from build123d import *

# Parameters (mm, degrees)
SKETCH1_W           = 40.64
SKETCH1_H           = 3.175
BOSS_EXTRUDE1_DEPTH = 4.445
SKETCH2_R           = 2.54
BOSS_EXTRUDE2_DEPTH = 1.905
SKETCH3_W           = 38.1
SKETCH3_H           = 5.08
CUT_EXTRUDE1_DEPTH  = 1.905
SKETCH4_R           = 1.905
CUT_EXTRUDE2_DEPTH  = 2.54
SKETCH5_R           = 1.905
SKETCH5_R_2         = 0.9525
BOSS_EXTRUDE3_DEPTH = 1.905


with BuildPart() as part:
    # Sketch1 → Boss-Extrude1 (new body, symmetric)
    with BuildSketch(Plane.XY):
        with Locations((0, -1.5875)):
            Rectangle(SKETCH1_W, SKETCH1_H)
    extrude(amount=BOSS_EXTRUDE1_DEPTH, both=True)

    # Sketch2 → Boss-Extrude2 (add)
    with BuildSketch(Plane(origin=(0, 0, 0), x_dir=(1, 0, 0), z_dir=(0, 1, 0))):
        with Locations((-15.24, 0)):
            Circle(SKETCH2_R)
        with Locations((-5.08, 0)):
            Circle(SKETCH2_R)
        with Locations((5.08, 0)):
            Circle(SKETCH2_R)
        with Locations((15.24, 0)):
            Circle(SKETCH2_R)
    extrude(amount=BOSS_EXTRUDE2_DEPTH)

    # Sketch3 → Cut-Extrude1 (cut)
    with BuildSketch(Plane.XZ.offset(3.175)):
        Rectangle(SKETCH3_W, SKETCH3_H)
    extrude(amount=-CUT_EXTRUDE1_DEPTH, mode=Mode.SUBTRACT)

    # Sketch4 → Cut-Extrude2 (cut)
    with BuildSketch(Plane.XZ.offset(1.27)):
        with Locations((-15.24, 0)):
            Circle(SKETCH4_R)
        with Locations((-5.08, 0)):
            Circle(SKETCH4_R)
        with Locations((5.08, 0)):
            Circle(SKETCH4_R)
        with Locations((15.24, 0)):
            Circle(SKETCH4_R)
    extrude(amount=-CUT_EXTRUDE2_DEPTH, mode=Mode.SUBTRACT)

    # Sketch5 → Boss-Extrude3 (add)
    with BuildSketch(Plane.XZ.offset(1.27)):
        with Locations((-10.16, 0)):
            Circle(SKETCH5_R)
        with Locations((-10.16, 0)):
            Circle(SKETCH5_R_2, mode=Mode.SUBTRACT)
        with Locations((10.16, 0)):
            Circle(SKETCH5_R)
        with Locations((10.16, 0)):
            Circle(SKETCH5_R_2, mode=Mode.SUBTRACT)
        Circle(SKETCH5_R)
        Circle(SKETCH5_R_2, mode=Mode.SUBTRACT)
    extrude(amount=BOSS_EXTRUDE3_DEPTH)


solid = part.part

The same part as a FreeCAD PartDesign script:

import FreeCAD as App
import Part
import Sketcher

V = App.Vector
Q = App.Units.Quantity

doc = App.newDocument("Part")
body = doc.addObject("PartDesign::Body", "Body")

# Sketch on XY plane
sketch1 = body.newObject("Sketcher::SketchObject", "Sketch")
sketch1.AttachmentSupport = (doc.getObject("XY_Plane"), [""])
sketch1.MapMode = "FlatFace"
sketch1.addGeometry([
    Part.LineSegment(V(-20.3, 0, 0), V(-20.3, -3.2, 0)),
    Part.LineSegment(V(-20.3, -3.2, 0), V(20.3, -3.2, 0)),
    Part.LineSegment(V(20.3, -3.2, 0), V(20.3, 0, 0)),
    Part.LineSegment(V(20.3, 0, 0), V(-20.3, 0, 0)),
], False)
sketch1.addConstraint([
    Sketcher.Constraint("Coincident", 0, 2, 1, 1),
    Sketcher.Constraint("Coincident", 1, 2, 2, 1),
    Sketcher.Constraint("Coincident", 2, 2, 3, 1),
    Sketcher.Constraint("Coincident", 3, 2, 0, 1),
    Sketcher.Constraint("Vertical", 0),
    Sketcher.Constraint("Horizontal", 1),
    Sketcher.Constraint("Vertical", 2),
    Sketcher.Constraint("Horizontal", 3),
    Sketcher.Constraint("Symmetric", 2, 2, 3, 2, -1, 1),
    Sketcher.Constraint("DistanceX", 1, 1, 1, 2, Q("1.6 in")),
    Sketcher.Constraint("DistanceY", 0, 2, 0, 1, Q("0.125 in")),
])
pad1 = body.newObject("PartDesign::Pad", "Pad")
pad1.Profile = sketch1
pad1.Length = Q("0.35 in")
pad1.Midplane = True

# Sketch on XZ plane
sketch2 = body.newObject("Sketcher::SketchObject", "Sketch001")
sketch2.AttachmentSupport = (doc.getObject("XZ_Plane"), [""])
sketch2.MapMode = "FlatFace"
sketch2.addGeometry([
    Part.Circle(V(-15.2, 0, 0), V(0, 0, 1), 2.5),
    Part.Circle(V(-5.1, 0, 0), V(0, 0, 1), 2.5),
    Part.Circle(V(5.1, 0, 0), V(0, 0, 1), 2.5),
    Part.Circle(V(15.2, 0, 0), V(0, 0, 1), 2.5),
], False)
sketch2.addConstraint([
    Sketcher.Constraint("Equal", 0, 1),
    Sketcher.Constraint("Equal", 1, 2),
    Sketcher.Constraint("Equal", 2, 3),
    Sketcher.Constraint("Symmetric", 1, 3, 2, 3, -1, 1),
    Sketcher.Constraint("Symmetric", 0, 3, 3, 3, -1, 1),
    Sketcher.Constraint("PointOnObject", 0, 3, -1),
    Sketcher.Constraint("PointOnObject", 1, 3, -1),
    Sketcher.Constraint("Diameter", 0, Q("0.2 in")),
    Sketcher.Constraint("DistanceX", 0, 3, -1, 1, Q("0.6 in")),
    Sketcher.Constraint("DistanceX", 1, 3, -1, 1, Q("0.2 in")),
])
pad2 = body.newObject("PartDesign::Pad", "Pad001")
pad2.Profile = sketch2
pad2.Length = Q("0.075 in")
pad2.Reversed = True

# Sketch on XZ plane
sketch3 = body.newObject("Sketcher::SketchObject", "Sketch002")
sketch3.AttachmentSupport = (doc.getObject("XZ_Plane"), [""])
sketch3.MapMode = "FlatFace"
sketch3.AttachmentOffset = App.Placement(V(0, 0, 0.125 * 25.4), App.Rotation())
sketch3.addGeometry([
    Part.LineSegment(V(-19, 3, 0), V(-19, -3, 0)),
    Part.LineSegment(V(-19, -3, 0), V(19, -3, 0)),
    Part.LineSegment(V(19, -3, 0), V(19, 3, 0)),
    Part.LineSegment(V(19, 3, 0), V(-19, 3, 0)),
], False)
sketch3.addConstraint([
    Sketcher.Constraint("Coincident", 0, 2, 1, 1),
    Sketcher.Constraint("Coincident", 1, 2, 2, 1),
    Sketcher.Constraint("Coincident", 2, 2, 3, 1),
    Sketcher.Constraint("Coincident", 3, 2, 0, 1),
    Sketcher.Constraint("Vertical", 0),
    Sketcher.Constraint("Horizontal", 1),
    Sketcher.Constraint("Vertical", 2),
    Sketcher.Constraint("Horizontal", 3),
    Sketcher.Constraint("Symmetric", 0, 2, 2, 2, -1, 1),
    Sketcher.Constraint("DistanceX", 1, 1, 1, 2, Q("1.5 in")),
    Sketcher.Constraint("DistanceY", 0, 2, 0, 1, Q("0.2 in")),
])
pocket1 = body.newObject("PartDesign::Pocket", "Pocket")
pocket1.Profile = sketch3
pocket1.Length = Q("0.075 in")

# Sketch on XZ plane
sketch4 = body.newObject("Sketcher::SketchObject", "Sketch003")
sketch4.AttachmentSupport = (doc.getObject("XZ_Plane"), [""])
sketch4.MapMode = "FlatFace"
sketch4.AttachmentOffset = App.Placement(V(0, 0, 0.05 * 25.4), App.Rotation())
sketch4.addGeometry([
    Part.Circle(V(-15.2, 0, 0), V(0, 0, 1), 1.9),
    Part.Circle(V(-5.1, 0, 0), V(0, 0, 1), 1.9),
    Part.Circle(V(5.1, 0, 0), V(0, 0, 1), 1.9),
    Part.Circle(V(15.2, 0, 0), V(0, 0, 1), 1.9),
], False)
sketch4.addConstraint([
    Sketcher.Constraint("Equal", 0, 1),
    Sketcher.Constraint("Equal", 1, 2),
    Sketcher.Constraint("Equal", 2, 3),
    Sketcher.Constraint("Symmetric", 1, 3, 2, 3, -1, 1),
    Sketcher.Constraint("Symmetric", 0, 3, 3, 3, -1, 1),
    Sketcher.Constraint("PointOnObject", 0, 3, -1),
    Sketcher.Constraint("PointOnObject", 1, 3, -1),
    Sketcher.Constraint("Diameter", 0, Q("0.15 in")),
    Sketcher.Constraint("DistanceX", 0, 3, -1, 1, Q("0.6 in")),
    Sketcher.Constraint("DistanceX", 1, 3, -1, 1, Q("0.2 in")),
])
pocket2 = body.newObject("PartDesign::Pocket", "Pocket001")
pocket2.Profile = sketch4
pocket2.Length = Q("0.1 in")

# Sketch on XZ plane
sketch5 = body.newObject("Sketcher::SketchObject", "Sketch004")
sketch5.AttachmentSupport = (doc.getObject("XZ_Plane"), [""])
sketch5.MapMode = "FlatFace"
sketch5.AttachmentOffset = App.Placement(V(0, 0, 0.05 * 25.4), App.Rotation())
sketch5.addGeometry([
    Part.Circle(V(-10.2, 0, 0), V(0, 0, 1), 1.9),  # 0
    Part.Circle(V(-10.2, 0, 0), V(0, 0, 1), 1),  # 1
    Part.Circle(V(10.2, 0, 0), V(0, 0, 1), 1.9),  # 2
    Part.Circle(V(10.2, 0, 0), V(0, 0, 1), 1),  # 3
    Part.Circle(V(0, 0, 0), V(0, 0, 1), 1.9),  # 4
    Part.Circle(V(0, 0, 0), V(0, 0, 1), 1),  # 5
], False)
sketch5.addConstraint([
    Sketcher.Constraint("Coincident", 4, 3, -1, 1),
    Sketcher.Constraint("Coincident", 5, 3, -1, 1),
    Sketcher.Constraint("Coincident", 1, 3, 0, 3),
    Sketcher.Constraint("Coincident", 3, 3, 2, 3),
    Sketcher.Constraint("Equal", 0, 2),
    Sketcher.Constraint("Equal", 1, 3),
    Sketcher.Constraint("Equal", 2, 4),
    Sketcher.Constraint("Equal", 3, 5),
    Sketcher.Constraint("Symmetric", 0, 3, 2, 3, -1, 1),
    Sketcher.Constraint("PointOnObject", 0, 3, -1),
    Sketcher.Constraint("Diameter", 0, Q("0.15 in")),
    Sketcher.Constraint("Diameter", 1, Q("0.075 in")),
    Sketcher.Constraint("DistanceX", 0, 3, -1, 1, Q("0.4 in")),
])
pad3 = body.newObject("PartDesign::Pad", "Pad002")
pad3.Profile = sketch5
pad3.Length = Q("0.075 in")

doc.recompute()
